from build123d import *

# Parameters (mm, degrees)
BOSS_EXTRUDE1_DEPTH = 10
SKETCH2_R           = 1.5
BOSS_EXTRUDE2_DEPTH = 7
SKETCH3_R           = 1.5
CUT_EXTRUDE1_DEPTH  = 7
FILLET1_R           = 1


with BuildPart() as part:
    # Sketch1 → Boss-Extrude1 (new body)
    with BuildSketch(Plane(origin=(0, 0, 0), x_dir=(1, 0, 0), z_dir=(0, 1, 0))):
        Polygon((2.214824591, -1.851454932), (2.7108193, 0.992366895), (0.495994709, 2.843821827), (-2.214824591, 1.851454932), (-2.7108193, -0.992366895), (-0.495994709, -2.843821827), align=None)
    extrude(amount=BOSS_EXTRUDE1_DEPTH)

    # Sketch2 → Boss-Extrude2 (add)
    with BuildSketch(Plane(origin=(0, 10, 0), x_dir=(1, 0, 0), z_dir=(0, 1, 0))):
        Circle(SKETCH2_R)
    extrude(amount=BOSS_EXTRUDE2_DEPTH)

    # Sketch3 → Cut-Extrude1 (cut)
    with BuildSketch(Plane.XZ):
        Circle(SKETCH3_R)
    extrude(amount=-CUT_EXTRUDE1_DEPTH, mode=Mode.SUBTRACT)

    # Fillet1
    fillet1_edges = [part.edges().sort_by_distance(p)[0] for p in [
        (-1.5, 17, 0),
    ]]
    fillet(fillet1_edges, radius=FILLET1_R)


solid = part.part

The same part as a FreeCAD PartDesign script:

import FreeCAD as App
import Part
import Sketcher


def edges_at(feature, points):
    """Names of the edges that pass closest to the given points."""
    edges = feature.Shape.Edges
    near = lambda p: min(range(len(edges)), key=lambda i: edges[i].distToShape(Part.Vertex(*p))[0])
    return sorted({f"Edge{near(p) + 1}" for p in points})


def add_polygon(sketch, points):
    """Adds a closed chain of lines whose ends are joined by coincident constraints."""
    first, n = sketch.GeometryCount, len(points)
    for a, b in zip(points, points[1:] + points[:1]):
        sketch.addGeometry(Part.LineSegment(App.Vector(*a, 0), App.Vector(*b, 0)), False)
    for i in range(n):
        sketch.addConstraint(Sketcher.Constraint("Coincident", first + i, 2, first + (i + 1) % n, 1))

doc = App.newDocument("Part")
body = doc.addObject("PartDesign::Body", "Body")

# Sketch on XZ plane
sketch1 = body.newObject("Sketcher::SketchObject", "Sketch")
sketch1.AttachmentSupport = (doc.getObject("XZ_Plane"), [""])
sketch1.MapMode = "FlatFace"
add_polygon(sketch1, [(2.214825, 1.851455), (2.710819, -0.992367), (0.495995, -2.843822), (-2.214825, -1.851455), (-2.710819, 0.992367), (-0.495995, 2.843822)])  # lines 0-5
sketch1.addConstraint(Sketcher.Constraint("Symmetric", 0, 2, 3, 2, -1, 1))
sketch1.addConstraint(Sketcher.Constraint("Symmetric", 1, 2, 4, 2, -1, 1))
sketch1.addConstraint(Sketcher.Constraint("Symmetric", 2, 2, 5, 2, -1, 1))
sketch1.addConstraint(Sketcher.Constraint("Equal", 0, 1))
sketch1.addConstraint(Sketcher.Constraint("Equal", 1, 2))
sketch1.addConstraint(Sketcher.Constraint("Distance", 0, 2.886751))
sketch1.addConstraint(Sketcher.Constraint("DistanceX", -1, 1, 0, 2, 2.710819))
sketch1.addConstraint(Sketcher.Constraint("DistanceY", 1, 2, -1, 1, 2.843822))
sketch1.addConstraint(Sketcher.Constraint("DistanceX", 2, 2, 1, 2, 2.710819))
pad1 = body.newObject("PartDesign::Pad", "Pad")
pad1.Profile = sketch1
pad1.Length = 10
pad1.Reversed = True

# Sketch on XZ plane
sketch2 = body.newObject("Sketcher::SketchObject", "Sketch001")
sketch2.AttachmentSupport = (doc.getObject("XZ_Plane"), [""])
sketch2.MapMode = "FlatFace"
sketch2.AttachmentOffset = App.Placement(App.Vector(0, 0, -10), App.Rotation())
sketch2.addGeometry(Part.Circle(App.Vector(0, 0, 0), App.Vector(0, 0, 1), 1.5), False)
sketch2.addConstraint(Sketcher.Constraint("Coincident", 0, 3, -1, 1))
sketch2.addConstraint(Sketcher.Constraint("Diameter", 0, 3.0))
pad2 = body.newObject("PartDesign::Pad", "Pad001")
pad2.Profile = sketch2
pad2.Length = 7
pad2.Reversed = True

# Sketch on XZ plane
sketch3 = body.newObject("Sketcher::SketchObject", "Sketch002")
sketch3.AttachmentSupport = (doc.getObject("XZ_Plane"), [""])
sketch3.MapMode = "FlatFace"
sketch3.addGeometry(Part.Circle(App.Vector(0, 0, 0), App.Vector(0, 0, 1), 1.5), False)
sketch3.addConstraint(Sketcher.Constraint("Coincident", 0, 3, -1, 1))
sketch3.addConstraint(Sketcher.Constraint("Diameter", 0, 3.0))
pocket1 = body.newObject("PartDesign::Pocket", "Pocket")
pocket1.Profile = sketch3
pocket1.Length = 7
doc.recompute()

fillet = body.newObject("PartDesign::Fillet", "Fillet")
fillet.Base = (pocket1, edges_at(pocket1, [(-1.5, 17, 0)]))
fillet.Radius = 1

doc.recompute()
